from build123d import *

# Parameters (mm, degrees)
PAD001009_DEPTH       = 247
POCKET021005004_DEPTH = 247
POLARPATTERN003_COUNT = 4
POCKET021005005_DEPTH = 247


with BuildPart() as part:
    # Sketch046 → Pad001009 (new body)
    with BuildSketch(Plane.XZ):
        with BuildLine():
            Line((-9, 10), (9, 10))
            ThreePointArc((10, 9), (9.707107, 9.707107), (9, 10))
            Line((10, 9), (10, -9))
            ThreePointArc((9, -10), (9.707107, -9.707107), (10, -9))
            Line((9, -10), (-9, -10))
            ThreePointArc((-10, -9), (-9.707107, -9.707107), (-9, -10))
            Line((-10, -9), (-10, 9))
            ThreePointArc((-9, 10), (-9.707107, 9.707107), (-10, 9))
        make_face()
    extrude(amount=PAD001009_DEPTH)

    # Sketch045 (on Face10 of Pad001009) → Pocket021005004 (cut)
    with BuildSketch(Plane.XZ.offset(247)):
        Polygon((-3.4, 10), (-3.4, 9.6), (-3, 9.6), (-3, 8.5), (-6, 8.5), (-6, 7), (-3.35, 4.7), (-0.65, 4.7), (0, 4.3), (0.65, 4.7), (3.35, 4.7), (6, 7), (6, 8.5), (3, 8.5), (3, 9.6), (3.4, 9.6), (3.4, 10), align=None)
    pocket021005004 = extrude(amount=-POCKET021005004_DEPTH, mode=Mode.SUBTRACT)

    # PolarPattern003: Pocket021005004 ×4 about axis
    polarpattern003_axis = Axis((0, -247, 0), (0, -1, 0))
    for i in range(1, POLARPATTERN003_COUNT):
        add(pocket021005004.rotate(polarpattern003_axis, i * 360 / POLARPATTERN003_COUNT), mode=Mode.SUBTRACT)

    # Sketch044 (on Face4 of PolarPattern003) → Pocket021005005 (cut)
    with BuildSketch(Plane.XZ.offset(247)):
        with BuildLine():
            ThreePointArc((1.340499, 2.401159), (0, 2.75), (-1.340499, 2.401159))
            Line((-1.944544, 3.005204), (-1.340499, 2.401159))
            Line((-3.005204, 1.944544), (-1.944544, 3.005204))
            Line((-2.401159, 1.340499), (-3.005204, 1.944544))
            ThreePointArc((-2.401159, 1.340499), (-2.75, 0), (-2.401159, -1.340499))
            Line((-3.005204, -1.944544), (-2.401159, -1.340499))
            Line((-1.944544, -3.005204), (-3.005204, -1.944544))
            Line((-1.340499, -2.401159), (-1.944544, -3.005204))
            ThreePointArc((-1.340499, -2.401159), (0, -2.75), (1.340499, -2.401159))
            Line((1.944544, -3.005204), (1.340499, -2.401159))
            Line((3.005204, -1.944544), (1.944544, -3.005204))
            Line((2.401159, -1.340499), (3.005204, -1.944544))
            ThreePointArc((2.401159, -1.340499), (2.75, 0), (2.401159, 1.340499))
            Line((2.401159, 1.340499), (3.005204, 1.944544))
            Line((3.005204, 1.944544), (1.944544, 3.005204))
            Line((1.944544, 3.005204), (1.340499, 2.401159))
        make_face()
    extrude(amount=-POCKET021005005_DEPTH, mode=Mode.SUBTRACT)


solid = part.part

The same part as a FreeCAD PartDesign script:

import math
import FreeCAD as App
import Part
import Sketcher
Q = App.Units.Quantity


def add_polygon(sketch, points):
    """Adds a closed chain of lines whose ends are joined by coincident constraints."""
    first, n = sketch.GeometryCount, len(points)
    for a, b in zip(points, points[1:] + points[:1]):
        sketch.addGeometry(Part.LineSegment(App.Vector(*a, 0), App.Vector(*b, 0)), False)
    for i in range(n):
        sketch.addConstraint(Sketcher.Constraint("Coincident", first + i, 2, first + (i + 1) % n, 1))

doc = App.newDocument("Part")
body = doc.addObject("PartDesign::Body", "Body")

sketch1 = doc.addObject("Sketcher::SketchObject", "Sketch")
body.addObject(sketch1)
sketch1.AttachmentSupport = (doc.XZ_Plane, [""])
sketch1.MapMode = "FlatFace"
sketch1.addGeometry([
    Part.LineSegment(App.Vector(9, 10, 0), App.Vector(-9, 10, 0)),
    Part.ArcOfCircle(Part.Circle(App.Vector(-9.000001, 9.000001, 0), App.Vector(0, 0, 1), 0.999999), math.radians(89.999957), math.radians(180.000043)),
    Part.LineSegment(App.Vector(-10, 9, 0), App.Vector(-10, -9, 0)),
    Part.ArcOfCircle(Part.Circle(App.Vector(-9.000001, -9.000001, 0), App.Vector(0, 0, 1), 0.999999), math.radians(179.999957), math.radians(270.000043)),
    Part.LineSegment(App.Vector(-9, -10, 0), App.Vector(9, -10, 0)),
    Part.ArcOfCircle(Part.Circle(App.Vector(9.000001, -9.000001, 0), App.Vector(0, 0, 1), 0.999999), math.radians(-90.000043), math.radians(0.000043)),
    Part.LineSegment(App.Vector(10, -9, 0), App.Vector(10, 9, 0)),
    Part.ArcOfCircle(Part.Circle(App.Vector(9.000001, 9.000001, 0), App.Vector(0, 0, 1), 0.999999), math.radians(-0.000043), math.radians(90.000043)),
], False)
sketch1.addConstraint([
    Sketcher.Constraint("Tangent", 0, 2, 1, 1),
    Sketcher.Constraint("Tangent", 1, 2, 2, 1),
    Sketcher.Constraint("Tangent", 2, 2, 3, 1),
    Sketcher.Constraint("Tangent", 3, 2, 4, 1),
    Sketcher.Constraint("Tangent", 4, 2, 5, 1),
    Sketcher.Constraint("Tangent", 5, 2, 6, 1),
    Sketcher.Constraint("Tangent", 6, 2, 7, 1),
    Sketcher.Constraint("Tangent", 7, 2, 0, 1),
    Sketcher.Constraint("Horizontal", 0),
    Sketcher.Constraint("Vertical", 2),
    Sketcher.Constraint("Horizontal", 4),
    Sketcher.Constraint("Vertical", 6),
    Sketcher.Constraint("Equal", 1, 3),
    Sketcher.Constraint("Equal", 3, 5),
    Sketcher.Constraint("Equal", 5, 7),
    Sketcher.Constraint("Symmetric", 1, 3, 5, 3, -1, 1),
    Sketcher.Constraint("Equal", 4, 2),
    Sketcher.Constraint("Radius", 1, Q("0.999999 mm")),
    Sketcher.Constraint("DistanceX", 0, 2, 0, 1, Q("18 mm")),
])
pad1 = doc.addObject("PartDesign::Pad", "Pad")
body.addObject(pad1)
pad1.Profile = sketch1
pad1.Length = 247

sketch2 = doc.addObject("Sketcher::SketchObject", "Sketch001")
body.addObject(sketch2)
sketch2.AttachmentSupport = (doc.XZ_Plane, [""])
sketch2.MapMode = "FlatFace"
sketch2.AttachmentOffset = App.Placement(App.Vector(0, 0, 247), App.Rotation())
add_polygon(sketch2, [(-3.4, 10), (-3.4, 9.6), (-3, 9.6), (-3, 8.5), (-6, 8.5), (-6, 7), (-3.35, 4.7), (-0.65, 4.7), (0, 4.3), (0.65, 4.7), (3.35, 4.7), (6, 7), (6, 8.5), (3, 8.5), (3, 9.6), (3.4, 9.6), (3.4, 10)])
sketch2.addConstraint([
    Sketcher.Constraint("Vertical", 0),
    Sketcher.Constraint("Horizontal", 1),
    Sketcher.Constraint("Vertical", 2),
    Sketcher.Constraint("Horizontal", 3),
    Sketcher.Constraint("Vertical", 4),
    Sketcher.Constraint("Horizontal", 6),
    Sketcher.Constraint("Horizontal", 9),
    Sketcher.Constraint("Vertical", 11),
    Sketcher.Constraint("Horizontal", 12),
    Sketcher.Constraint("Vertical", 13),
    Sketcher.Constraint("Horizontal", 14),
    Sketcher.Constraint("Vertical", 15),
    Sketcher.Constraint("Horizontal", 16),
    Sketcher.Constraint("Symmetric", 6, 2, 8, 2, -2),
    Sketcher.Constraint("Symmetric", 4, 2, 10, 2, -2),
    Sketcher.Constraint("Symmetric", 2, 2, 12, 2, -2),
    Sketcher.Constraint("Symmetric", 0, 2, 14, 2, -2),
    Sketcher.Constraint("PointOnObject", 7, 2, -2),
    Sketcher.Constraint("Equal", 6, 9),
    Sketcher.Constraint("Equal", 14, 0),
    Sketcher.Constraint("DistanceX", 3, 2, 3, 1, Q("3 mm")),
    Sketcher.Constraint("DistanceX", 1, 1, 1, 2, Q("0.4 mm")),
    Sketcher.Constraint("DistanceX", 6, 1, 6, 2, Q("2.7 mm")),
    Sketcher.Constraint("DistanceX", 16, 2, 16, 1, Q("6.8 mm")),
    Sketcher.Constraint("DistanceY", 2, 2, 2, 1, Q("1.1 mm")),
    Sketcher.Constraint("DistanceY", 4, 2, 4, 1, Q("1.5 mm")),
    Sketcher.Constraint("DistanceY", -1, 1, 4, 2, Q("7 mm")),
    Sketcher.Constraint("DistanceX", 5, 2, 8, 2, Q("4 mm")),
    Sketcher.Constraint("DistanceY", -1, 1, 5, 2, Q("4.7 mm")),
    Sketcher.Constraint("DistanceY", -1, 1, 7, 2, Q("4.3 mm")),
])
pocket1 = doc.addObject("PartDesign::Pocket", "Pocket")
body.addObject(pocket1)
pocket1.Profile = sketch2
pocket1.Length = 247
doc.recompute()

polarpattern = doc.addObject("PartDesign::PolarPattern", "PolarPattern")
body.addObject(polarpattern)
polarpattern.Originals = [pocket1]
polarpattern.Axis = (doc.Y_Axis, [""])
polarpattern.Angle = 360
polarpattern.Occurrences = 4
body.Tip = polarpattern

sketch3 = doc.addObject("Sketcher::SketchObject", "Sketch002")
body.addObject(sketch3)
sketch3.AttachmentSupport = (doc.XZ_Plane, [""])
sketch3.MapMode = "FlatFace"
sketch3.AttachmentOffset = App.Placement(App.Vector(0, 0, 247), App.Rotation())
sketch3.addGeometry([
    Part.ArcOfCircle(Part.Circle(App.Vector(0, -0.000003, 0), App.Vector(0, 0, 1), 2.750003), math.radians(60.826646), math.radians(119.173354)),
    Part.LineSegment(App.Vector(-1.340499, 2.401159, 0), App.Vector(-1.944544, 3.005204, 0)),
    Part.LineSegment(App.Vector(-1.944544, 3.005204, 0), App.Vector(-3.005204, 1.944544, 0)),
    Part.LineSegment(App.Vector(-3.005204, 1.944544, 0), App.Vector(-2.401159, 1.340499, 0)),
    Part.ArcOfCircle(Part.Circle(App.Vector(0.000003, 0, 0), App.Vector(0, 0, 1), 2.750003), math.radians(150.826646), math.radians(209.173354)),
    Part.LineSegment(App.Vector(-2.401159, -1.340499, 0), App.Vector(-3.005204, -1.944544, 0)),
    Part.LineSegment(App.Vector(-3.005204, -1.944544, 0), App.Vector(-1.944544, -3.005204, 0)),
    Part.LineSegment(App.Vector(-1.944544, -3.005204, 0), App.Vector(-1.340499, -2.401159, 0)),
    Part.ArcOfCircle(Part.Circle(App.Vector(0, 0.000003, 0), App.Vector(0, 0, 1), 2.750003), math.radians(-119.173354), math.radians(-60.826646)),
    Part.LineSegment(App.Vector(1.340499, -2.401159, 0), App.Vector(1.944544, -3.005204, 0)),
    Part.LineSegment(App.Vector(1.944544, -3.005204, 0), App.Vector(3.005204, -1.944544, 0)),
    Part.LineSegment(App.Vector(3.005204, -1.944544, 0), App.Vector(2.401159, -1.340499, 0)),
    Part.ArcOfCircle(Part.Circle(App.Vector(-0.000003, 0, 0), App.Vector(0, 0, 1), 2.750003), math.radians(-29.173354), math.radians(29.173354)),
    Part.LineSegment(App.Vector(2.401159, 1.340499, 0), App.Vector(3.005204, 1.944544, 0)),
    Part.LineSegment(App.Vector(3.005204, 1.944544, 0), App.Vector(1.944544, 3.005204, 0)),
    Part.LineSegment(App.Vector(1.944544, 3.005204, 0), App.Vector(1.340499, 2.401159, 0)),
], False)
sketch3.addConstraint([
    Sketcher.Constraint("Coincident", 0, 2, 1, 1),
    Sketcher.Constraint("Coincident", 1, 2, 2, 1),
    Sketcher.Constraint("Coincident", 2, 2, 3, 1),
    Sketcher.Constraint("Coincident", 3, 2, 4, 1),
    Sketcher.Constraint("Coincident", 4, 2, 5, 1),
    Sketcher.Constraint("Coincident", 5, 2, 6, 1),
    Sketcher.Constraint("Coincident", 6, 2, 7, 1),
    Sketcher.Constraint("Coincident", 7, 2, 8, 1),
    Sketcher.Constraint("Coincident", 8, 2, 9, 1),
    Sketcher.Constraint("Coincident", 9, 2, 10, 1),
    Sketcher.Constraint("Coincident", 10, 2, 11, 1),
    Sketcher.Constraint("Coincident", 11, 2, 12, 1),
    Sketcher.Constraint("Coincident", 12, 2, 13, 1),
    Sketcher.Constraint("Coincident", 13, 2, 14, 1),
    Sketcher.Constraint("Coincident", 14, 2, 15, 1),
    Sketcher.Constraint("Coincident", 15, 2, 0, 1),
    Sketcher.Constraint("Coincident", 0, 3, -1, 1),
    Sketcher.Constraint("Coincident", 4, 3, -1, 1),
    Sketcher.Constraint("Coincident", 8, 3, -1, 1),
    Sketcher.Constraint("Coincident", 12, 3, -1, 1),
    Sketcher.Constraint("Equal", 0, 4),
    Sketcher.Constraint("Equal", 4, 8),
    Sketcher.Constraint("Equal", 8, 12),
    Sketcher.Constraint("Symmetric", 1, 2, 9, 2, -1, 1),
    Sketcher.Constraint("Symmetric", 2, 2, 10, 2, -1, 1),
    Sketcher.Constraint("Symmetric", 5, 2, 13, 2, -1, 1),
    Sketcher.Constraint("Symmetric", 6, 2, 14, 2, -1, 1),
    Sketcher.Constraint("Symmetric", 6, 2, 9, 2, -2),
    Sketcher.Constraint("Symmetric", 5, 2, 10, 2, -2),
    Sketcher.Constraint("Perpendicular", 1, 2),
    Sketcher.Constraint("Perpendicular", 2, 3),
    Sketcher.Constraint("Perpendicular", 3, 5),
    Sketcher.Constraint("Perpendicular", 5, 6),
    Sketcher.Constraint("Perpendicular", 6, 7),
    Sketcher.Constraint("Perpendicular", 7, 9),
    Sketcher.Constraint("Perpendicular", 10, 11),
    Sketcher.Constraint("Perpendicular", 11, 13),
    Sketcher.Constraint("Perpendicular", 14, 15),
    Sketcher.Constraint("Equal", 1, 3),
    Sketcher.Constraint("Distance", 2, Q("1.5 mm")),
    Sketcher.Constraint("Radius", 0, Q("2.750003 mm")),
    Sketcher.Constraint("DistanceY", 8, 3, 1, 2, Q("3.005201 mm")),
])
pocket2 = doc.addObject("PartDesign::Pocket", "Pocket001")
body.addObject(pocket2)
pocket2.Profile = sketch3
pocket2.Length = 247

doc.recompute()
